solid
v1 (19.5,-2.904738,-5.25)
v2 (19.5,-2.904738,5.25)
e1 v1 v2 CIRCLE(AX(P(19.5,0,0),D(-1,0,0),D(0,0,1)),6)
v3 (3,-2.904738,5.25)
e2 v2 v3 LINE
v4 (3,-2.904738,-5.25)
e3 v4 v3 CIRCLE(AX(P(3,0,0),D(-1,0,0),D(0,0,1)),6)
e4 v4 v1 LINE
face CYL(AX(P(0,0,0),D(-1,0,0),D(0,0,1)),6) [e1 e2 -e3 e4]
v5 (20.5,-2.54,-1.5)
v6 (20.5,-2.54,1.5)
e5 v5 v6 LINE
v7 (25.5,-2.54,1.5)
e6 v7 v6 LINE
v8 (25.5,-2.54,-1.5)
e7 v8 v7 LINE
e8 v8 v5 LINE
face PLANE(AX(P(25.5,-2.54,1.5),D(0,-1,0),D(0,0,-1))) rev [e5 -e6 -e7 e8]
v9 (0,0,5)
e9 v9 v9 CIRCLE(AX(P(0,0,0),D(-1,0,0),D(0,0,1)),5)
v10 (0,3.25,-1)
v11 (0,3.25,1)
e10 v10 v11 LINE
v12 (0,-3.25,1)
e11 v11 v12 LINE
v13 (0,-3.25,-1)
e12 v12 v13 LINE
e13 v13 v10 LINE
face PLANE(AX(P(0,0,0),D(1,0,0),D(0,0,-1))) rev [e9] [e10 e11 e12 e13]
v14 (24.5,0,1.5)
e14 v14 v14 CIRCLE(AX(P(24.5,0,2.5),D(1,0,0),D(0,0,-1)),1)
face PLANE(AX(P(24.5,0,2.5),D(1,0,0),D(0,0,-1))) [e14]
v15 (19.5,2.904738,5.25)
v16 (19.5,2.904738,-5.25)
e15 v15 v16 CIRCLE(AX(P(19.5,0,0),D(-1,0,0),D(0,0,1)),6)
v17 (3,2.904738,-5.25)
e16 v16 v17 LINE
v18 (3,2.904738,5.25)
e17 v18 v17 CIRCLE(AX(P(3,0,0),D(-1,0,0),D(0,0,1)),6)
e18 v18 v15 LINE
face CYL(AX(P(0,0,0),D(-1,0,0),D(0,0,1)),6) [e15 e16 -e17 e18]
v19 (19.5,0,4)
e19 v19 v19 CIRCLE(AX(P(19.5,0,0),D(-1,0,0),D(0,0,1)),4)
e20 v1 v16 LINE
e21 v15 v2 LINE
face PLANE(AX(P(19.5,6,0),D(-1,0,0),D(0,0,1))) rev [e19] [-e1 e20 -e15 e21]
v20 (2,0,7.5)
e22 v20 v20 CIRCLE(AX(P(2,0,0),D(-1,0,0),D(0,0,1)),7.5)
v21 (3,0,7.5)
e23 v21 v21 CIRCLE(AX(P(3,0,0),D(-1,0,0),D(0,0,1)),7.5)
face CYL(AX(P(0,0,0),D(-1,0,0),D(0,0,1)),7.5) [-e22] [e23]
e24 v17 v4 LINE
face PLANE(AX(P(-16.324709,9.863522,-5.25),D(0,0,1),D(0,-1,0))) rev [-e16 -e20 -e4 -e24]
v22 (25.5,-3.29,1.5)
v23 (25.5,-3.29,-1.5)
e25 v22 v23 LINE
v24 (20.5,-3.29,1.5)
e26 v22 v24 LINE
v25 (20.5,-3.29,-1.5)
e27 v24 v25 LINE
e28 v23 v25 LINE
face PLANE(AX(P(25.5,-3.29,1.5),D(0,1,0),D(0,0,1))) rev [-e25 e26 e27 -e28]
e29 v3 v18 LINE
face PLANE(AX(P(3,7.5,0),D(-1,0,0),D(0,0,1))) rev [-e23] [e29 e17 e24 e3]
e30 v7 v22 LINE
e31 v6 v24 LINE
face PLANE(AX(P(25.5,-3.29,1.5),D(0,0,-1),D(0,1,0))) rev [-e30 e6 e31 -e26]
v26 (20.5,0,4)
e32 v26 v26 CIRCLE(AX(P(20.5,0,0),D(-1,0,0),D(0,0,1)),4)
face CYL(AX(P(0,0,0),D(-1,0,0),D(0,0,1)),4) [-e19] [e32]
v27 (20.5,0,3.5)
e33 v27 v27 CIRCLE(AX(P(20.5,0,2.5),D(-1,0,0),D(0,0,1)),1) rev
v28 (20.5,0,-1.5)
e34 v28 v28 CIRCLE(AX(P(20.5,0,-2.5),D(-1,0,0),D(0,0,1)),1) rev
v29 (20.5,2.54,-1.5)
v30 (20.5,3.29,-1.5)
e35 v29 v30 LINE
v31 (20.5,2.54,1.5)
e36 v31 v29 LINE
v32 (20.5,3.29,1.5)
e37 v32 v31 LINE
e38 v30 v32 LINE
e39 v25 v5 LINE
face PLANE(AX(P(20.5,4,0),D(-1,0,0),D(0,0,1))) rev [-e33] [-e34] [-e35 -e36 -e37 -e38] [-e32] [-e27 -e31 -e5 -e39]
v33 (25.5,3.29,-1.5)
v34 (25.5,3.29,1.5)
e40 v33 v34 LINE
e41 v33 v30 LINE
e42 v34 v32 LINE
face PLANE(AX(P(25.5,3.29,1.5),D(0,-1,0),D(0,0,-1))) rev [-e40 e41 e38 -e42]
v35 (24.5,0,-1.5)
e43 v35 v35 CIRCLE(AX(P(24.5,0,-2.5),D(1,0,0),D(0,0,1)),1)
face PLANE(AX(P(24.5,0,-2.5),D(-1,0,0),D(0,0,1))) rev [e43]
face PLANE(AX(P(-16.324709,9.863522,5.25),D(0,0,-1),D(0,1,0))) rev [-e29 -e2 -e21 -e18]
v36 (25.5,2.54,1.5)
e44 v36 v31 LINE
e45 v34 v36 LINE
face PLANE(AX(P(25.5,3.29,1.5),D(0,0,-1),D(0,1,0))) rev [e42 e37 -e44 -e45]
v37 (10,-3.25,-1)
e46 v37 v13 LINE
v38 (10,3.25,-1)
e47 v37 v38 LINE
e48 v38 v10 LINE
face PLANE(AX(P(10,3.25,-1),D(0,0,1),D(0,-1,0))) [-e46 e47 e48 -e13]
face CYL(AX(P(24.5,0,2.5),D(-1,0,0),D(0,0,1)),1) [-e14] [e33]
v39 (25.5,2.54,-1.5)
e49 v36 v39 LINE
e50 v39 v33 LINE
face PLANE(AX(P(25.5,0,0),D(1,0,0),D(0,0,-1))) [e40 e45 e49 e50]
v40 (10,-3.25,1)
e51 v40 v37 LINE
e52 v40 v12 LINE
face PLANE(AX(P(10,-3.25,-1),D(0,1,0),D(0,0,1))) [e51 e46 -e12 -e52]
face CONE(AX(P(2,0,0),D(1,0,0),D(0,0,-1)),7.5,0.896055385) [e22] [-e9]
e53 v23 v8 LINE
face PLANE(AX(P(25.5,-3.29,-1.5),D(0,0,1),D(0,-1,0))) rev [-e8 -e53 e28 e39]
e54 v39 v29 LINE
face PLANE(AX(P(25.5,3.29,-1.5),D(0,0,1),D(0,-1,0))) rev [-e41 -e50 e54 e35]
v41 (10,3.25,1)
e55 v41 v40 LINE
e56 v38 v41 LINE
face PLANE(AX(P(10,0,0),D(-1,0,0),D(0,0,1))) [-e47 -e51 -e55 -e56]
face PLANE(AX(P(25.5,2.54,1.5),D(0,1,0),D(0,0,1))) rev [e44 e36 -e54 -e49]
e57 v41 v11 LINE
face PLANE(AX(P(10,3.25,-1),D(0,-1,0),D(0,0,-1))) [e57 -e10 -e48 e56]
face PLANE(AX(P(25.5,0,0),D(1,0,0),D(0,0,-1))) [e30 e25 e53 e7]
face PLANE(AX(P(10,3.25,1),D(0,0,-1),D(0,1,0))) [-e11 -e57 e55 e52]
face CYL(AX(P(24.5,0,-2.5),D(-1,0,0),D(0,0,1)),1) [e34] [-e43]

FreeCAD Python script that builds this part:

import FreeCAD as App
import Part
import Sketcher


def add_polygon(sketch, points):
    """Adds a closed chain of lines whose ends are joined by coincident constraints."""
    first, n = sketch.GeometryCount, len(points)
    for a, b in zip(points, points[1:] + points[:1]):
        sketch.addGeometry(Part.LineSegment(App.Vector(*a, 0), App.Vector(*b, 0)), False)
    for i in range(n):
        sketch.addConstraint(Sketcher.Constraint("Coincident", first + i, 2, first + (i + 1) % n, 1))

doc = App.newDocument("Part")
body = doc.addObject("PartDesign::Body", "Body")

# Sketch on XY plane
sketch1 = body.newObject("Sketcher::SketchObject", "Sketch")
sketch1.AttachmentSupport = (doc.getObject("XY_Plane"), [""])
sketch1.MapMode = "FlatFace"
add_polygon(sketch1, [(0, 5), (0, 0), (20.5, 0), (20.5, 4), (19.5, 4), (19.5, 6), (3, 6), (3, 7.5), (2, 7.5)])  # lines 0-8
sketch1.addConstraint([
    Sketcher.Constraint("Vertical", 0),
    Sketcher.Constraint("Horizontal", 1),
    Sketcher.Constraint("Vertical", 2),
    Sketcher.Constraint("Horizontal", 3),
    Sketcher.Constraint("Vertical", 4),
    Sketcher.Constraint("Horizontal", 5),
    Sketcher.Constraint("Vertical", 6),
    Sketcher.Constraint("Horizontal", 7),
    Sketcher.Constraint("Coincident", 0, 2, -1, 1),
    Sketcher.Constraint("Equal", 3, 7),
    Sketcher.Constraint("DistanceX", 3, 2, 3, 1, 1.0),
    Sketcher.Constraint("DistanceY", 0, 2, 0, 1, 5.0),
    Sketcher.Constraint("DistanceY", 2, 1, 2, 2, 4.0),
    Sketcher.Constraint("DistanceY", 4, 1, 4, 2, 2.0),
    Sketcher.Constraint("DistanceX", 1, 1, 1, 2, 20.5),
    Sketcher.Constraint("DistanceX", 5, 2, 5, 1, 16.5),
    Sketcher.Constraint("DistanceY", 6, 1, 6, 2, 1.5),
])
revolution = body.newObject("PartDesign::Revolution", "Revolution")
revolution.Profile = sketch1
revolution.ReferenceAxis = (sketch1, ["H_Axis"])
revolution.Angle = 360

# Sketch on YZ plane
sketch2 = body.newObject("Sketcher::SketchObject", "Sketch001")
sketch2.AttachmentSupport = (doc.getObject("YZ_Plane"), [""])
sketch2.MapMode = "FlatFace"
add_polygon(sketch2, [(3.25, 1), (-3.25, 1), (-3.25, -1), (3.25, -1)])  # lines 0-3
sketch2.addConstraint([
    Sketcher.Constraint("Horizontal", 0),
    Sketcher.Constraint("Vertical", 1),
    Sketcher.Constraint("Horizontal", 2),
    Sketcher.Constraint("Vertical", 3),
    Sketcher.Constraint("Symmetric", 0, 2, 2, 2, -1, 1),
    Sketcher.Constraint("DistanceY", 1, 2, 1, 1, 2.0),
    Sketcher.Constraint("DistanceX", 0, 2, 0, 1, 6.5),
])
pocket1 = body.newObject("PartDesign::Pocket", "Pocket")
pocket1.Profile = sketch2
pocket1.Length = 10
pocket1.Reversed = True

# Sketch on YZ plane
sketch3 = body.newObject("Sketcher::SketchObject", "Sketch002")
sketch3.AttachmentSupport = (doc.getObject("YZ_Plane"), [""])
sketch3.MapMode = "FlatFace"
sketch3.AttachmentOffset = App.Placement(App.Vector(0, 0, 20.5), App.Rotation())
add_polygon(sketch3, [(9.863522, 11.001946), (-8.585312, 11.001946), (-8.585312, 5.25), (9.863522, 5.25)])  # lines 0-3
add_polygon(sketch3, [(9.863522, -5.25), (-8.585312, -5.25), (-8.585312, -11.001946), (9.863522, -11.001946)])  # lines 4-7
sketch3.addConstraint([
    Sketcher.Constraint("Horizontal", 0),
    Sketcher.Constraint("Vertical", 1),
    Sketcher.Constraint("Horizontal", 2),
    Sketcher.Constraint("Vertical", 3),
    Sketcher.Constraint("Horizontal", 4),
    Sketcher.Constraint("Vertical", 5),
    Sketcher.Constraint("Horizontal", 6),
    Sketcher.Constraint("Vertical", 7),
    Sketcher.Constraint("Symmetric", 1, 2, 4, 2, -1),
    Sketcher.Constraint("Symmetric", 3, 2, 6, 2, -1),
    Sketcher.Constraint("DistanceY", 4, 2, 1, 2, 10.5),
    Sketcher.Constraint("DistanceX", 0, 2, 0, 1, 18.448835),
    Sketcher.Constraint("DistanceY", 1, 2, 1, 1, 5.751946),
    Sketcher.Constraint("DistanceX", 0, 2, -1, 1, 8.585312),
])
pocket2 = body.newObject("PartDesign::Pocket", "Pocket001")
pocket2.Profile = sketch3
pocket2.Length = 17.5

# Sketch on YZ plane
sketch4 = body.newObject("Sketcher::SketchObject", "Sketch003")
sketch4.AttachmentSupport = (doc.getObject("YZ_Plane"), [""])
sketch4.MapMode = "FlatFace"
sketch4.AttachmentOffset = App.Placement(App.Vector(0, 0, 20.5), App.Rotation())
add_polygon(sketch4, [(3.29, 1.5), (2.54, 1.5), (2.54, -1.5), (3.29, -1.5)])  # lines 0-3
add_polygon(sketch4, [(-2.54, 1.5), (-3.29, 1.5), (-3.29, -1.5), (-2.54, -1.5)])  # lines 4-7
sketch4.addConstraint([
    Sketcher.Constraint("Horizontal", 0),
    Sketcher.Constraint("Vertical", 1),
    Sketcher.Constraint("Horizontal", 2),
    Sketcher.Constraint("Vertical", 3),
    Sketcher.Constraint("Horizontal", 4),
    Sketcher.Constraint("Vertical", 5),
    Sketcher.Constraint("Horizontal", 6),
    Sketcher.Constraint("Vertical", 7),
    Sketcher.Constraint("Symmetric", 2, 2, 4, 2, -1, 1),
    Sketcher.Constraint("Symmetric", 0, 2, 6, 2, -1, 1),
    Sketcher.Constraint("Horizontal", 3, 2, 4, 2),
    Sketcher.Constraint("DistanceY", 1, 2, 1, 1, 3.0),
    Sketcher.Constraint("DistanceX", 0, 2, 0, 1, 0.75),
    Sketcher.Constraint("DistanceX", -1, 1, 0, 2, 2.54),
])
pad1 = body.newObject("PartDesign::Pad", "Pad")
pad1.Profile = sketch4
pad1.Length = 5

# Sketch on YZ plane
sketch5 = body.newObject("Sketcher::SketchObject", "Sketch004")
sketch5.AttachmentSupport = (doc.getObject("YZ_Plane"), [""])
sketch5.MapMode = "FlatFace"
sketch5.AttachmentOffset = App.Placement(App.Vector(0, 0, 20.5), App.Rotation())
sketch5.addGeometry([
    Part.Circle(App.Vector(0, 2.5, 0), App.Vector(0, 0, 1), 1),
    Part.Circle(App.Vector(0, -2.5, 0), App.Vector(0, 0, 1), 1),
], False)
sketch5.addConstraint([
    Sketcher.Constraint("Equal", 0, 1),
    Sketcher.Constraint("Symmetric", 0, 3, 1, 3, -1, 1),
    Sketcher.Constraint("PointOnObject", 0, 3, -2),
    Sketcher.Constraint("Diameter", 0, 2.0),
    Sketcher.Constraint("DistanceY", 1, 3, 0, 3, 5.0),
])
pad2 = body.newObject("PartDesign::Pad", "Pad001")
pad2.Profile = sketch5
pad2.Length = 4

doc.recompute()
